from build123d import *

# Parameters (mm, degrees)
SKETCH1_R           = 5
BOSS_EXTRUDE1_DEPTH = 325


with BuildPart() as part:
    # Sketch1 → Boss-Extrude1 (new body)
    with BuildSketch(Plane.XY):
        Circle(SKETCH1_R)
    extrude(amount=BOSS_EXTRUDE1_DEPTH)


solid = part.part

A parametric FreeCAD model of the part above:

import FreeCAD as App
import Part
import Sketcher
from FreeCAD import Vector
Q = App.Units.Quantity

doc = App.newDocument("Part")
body = doc.addObject("PartDesign::Body", "Body")

# Sketch on XY plane
sketch1 = body.newObject("Sketcher::SketchObject", "Sketch")
sketch1.AttachmentSupport = (doc.getObject("XY_Plane"), [""])
sketch1.MapMode = "FlatFace"
sketch1.addGeometry(Part.Circle(Vector(0, 0, 0), Vector(0, 0, 1), 5), False)
sketch1.addConstraint(Sketcher.Constraint("Coincident", 0, 3, -1, 1))
sketch1.addConstraint(Sketcher.Constraint("Diameter", 0, Q("10 mm")))
pad1 = body.newObject("PartDesign::Pad", "Pad")
pad1.Profile = sketch1
pad1.Length = 325

doc.recompute()
